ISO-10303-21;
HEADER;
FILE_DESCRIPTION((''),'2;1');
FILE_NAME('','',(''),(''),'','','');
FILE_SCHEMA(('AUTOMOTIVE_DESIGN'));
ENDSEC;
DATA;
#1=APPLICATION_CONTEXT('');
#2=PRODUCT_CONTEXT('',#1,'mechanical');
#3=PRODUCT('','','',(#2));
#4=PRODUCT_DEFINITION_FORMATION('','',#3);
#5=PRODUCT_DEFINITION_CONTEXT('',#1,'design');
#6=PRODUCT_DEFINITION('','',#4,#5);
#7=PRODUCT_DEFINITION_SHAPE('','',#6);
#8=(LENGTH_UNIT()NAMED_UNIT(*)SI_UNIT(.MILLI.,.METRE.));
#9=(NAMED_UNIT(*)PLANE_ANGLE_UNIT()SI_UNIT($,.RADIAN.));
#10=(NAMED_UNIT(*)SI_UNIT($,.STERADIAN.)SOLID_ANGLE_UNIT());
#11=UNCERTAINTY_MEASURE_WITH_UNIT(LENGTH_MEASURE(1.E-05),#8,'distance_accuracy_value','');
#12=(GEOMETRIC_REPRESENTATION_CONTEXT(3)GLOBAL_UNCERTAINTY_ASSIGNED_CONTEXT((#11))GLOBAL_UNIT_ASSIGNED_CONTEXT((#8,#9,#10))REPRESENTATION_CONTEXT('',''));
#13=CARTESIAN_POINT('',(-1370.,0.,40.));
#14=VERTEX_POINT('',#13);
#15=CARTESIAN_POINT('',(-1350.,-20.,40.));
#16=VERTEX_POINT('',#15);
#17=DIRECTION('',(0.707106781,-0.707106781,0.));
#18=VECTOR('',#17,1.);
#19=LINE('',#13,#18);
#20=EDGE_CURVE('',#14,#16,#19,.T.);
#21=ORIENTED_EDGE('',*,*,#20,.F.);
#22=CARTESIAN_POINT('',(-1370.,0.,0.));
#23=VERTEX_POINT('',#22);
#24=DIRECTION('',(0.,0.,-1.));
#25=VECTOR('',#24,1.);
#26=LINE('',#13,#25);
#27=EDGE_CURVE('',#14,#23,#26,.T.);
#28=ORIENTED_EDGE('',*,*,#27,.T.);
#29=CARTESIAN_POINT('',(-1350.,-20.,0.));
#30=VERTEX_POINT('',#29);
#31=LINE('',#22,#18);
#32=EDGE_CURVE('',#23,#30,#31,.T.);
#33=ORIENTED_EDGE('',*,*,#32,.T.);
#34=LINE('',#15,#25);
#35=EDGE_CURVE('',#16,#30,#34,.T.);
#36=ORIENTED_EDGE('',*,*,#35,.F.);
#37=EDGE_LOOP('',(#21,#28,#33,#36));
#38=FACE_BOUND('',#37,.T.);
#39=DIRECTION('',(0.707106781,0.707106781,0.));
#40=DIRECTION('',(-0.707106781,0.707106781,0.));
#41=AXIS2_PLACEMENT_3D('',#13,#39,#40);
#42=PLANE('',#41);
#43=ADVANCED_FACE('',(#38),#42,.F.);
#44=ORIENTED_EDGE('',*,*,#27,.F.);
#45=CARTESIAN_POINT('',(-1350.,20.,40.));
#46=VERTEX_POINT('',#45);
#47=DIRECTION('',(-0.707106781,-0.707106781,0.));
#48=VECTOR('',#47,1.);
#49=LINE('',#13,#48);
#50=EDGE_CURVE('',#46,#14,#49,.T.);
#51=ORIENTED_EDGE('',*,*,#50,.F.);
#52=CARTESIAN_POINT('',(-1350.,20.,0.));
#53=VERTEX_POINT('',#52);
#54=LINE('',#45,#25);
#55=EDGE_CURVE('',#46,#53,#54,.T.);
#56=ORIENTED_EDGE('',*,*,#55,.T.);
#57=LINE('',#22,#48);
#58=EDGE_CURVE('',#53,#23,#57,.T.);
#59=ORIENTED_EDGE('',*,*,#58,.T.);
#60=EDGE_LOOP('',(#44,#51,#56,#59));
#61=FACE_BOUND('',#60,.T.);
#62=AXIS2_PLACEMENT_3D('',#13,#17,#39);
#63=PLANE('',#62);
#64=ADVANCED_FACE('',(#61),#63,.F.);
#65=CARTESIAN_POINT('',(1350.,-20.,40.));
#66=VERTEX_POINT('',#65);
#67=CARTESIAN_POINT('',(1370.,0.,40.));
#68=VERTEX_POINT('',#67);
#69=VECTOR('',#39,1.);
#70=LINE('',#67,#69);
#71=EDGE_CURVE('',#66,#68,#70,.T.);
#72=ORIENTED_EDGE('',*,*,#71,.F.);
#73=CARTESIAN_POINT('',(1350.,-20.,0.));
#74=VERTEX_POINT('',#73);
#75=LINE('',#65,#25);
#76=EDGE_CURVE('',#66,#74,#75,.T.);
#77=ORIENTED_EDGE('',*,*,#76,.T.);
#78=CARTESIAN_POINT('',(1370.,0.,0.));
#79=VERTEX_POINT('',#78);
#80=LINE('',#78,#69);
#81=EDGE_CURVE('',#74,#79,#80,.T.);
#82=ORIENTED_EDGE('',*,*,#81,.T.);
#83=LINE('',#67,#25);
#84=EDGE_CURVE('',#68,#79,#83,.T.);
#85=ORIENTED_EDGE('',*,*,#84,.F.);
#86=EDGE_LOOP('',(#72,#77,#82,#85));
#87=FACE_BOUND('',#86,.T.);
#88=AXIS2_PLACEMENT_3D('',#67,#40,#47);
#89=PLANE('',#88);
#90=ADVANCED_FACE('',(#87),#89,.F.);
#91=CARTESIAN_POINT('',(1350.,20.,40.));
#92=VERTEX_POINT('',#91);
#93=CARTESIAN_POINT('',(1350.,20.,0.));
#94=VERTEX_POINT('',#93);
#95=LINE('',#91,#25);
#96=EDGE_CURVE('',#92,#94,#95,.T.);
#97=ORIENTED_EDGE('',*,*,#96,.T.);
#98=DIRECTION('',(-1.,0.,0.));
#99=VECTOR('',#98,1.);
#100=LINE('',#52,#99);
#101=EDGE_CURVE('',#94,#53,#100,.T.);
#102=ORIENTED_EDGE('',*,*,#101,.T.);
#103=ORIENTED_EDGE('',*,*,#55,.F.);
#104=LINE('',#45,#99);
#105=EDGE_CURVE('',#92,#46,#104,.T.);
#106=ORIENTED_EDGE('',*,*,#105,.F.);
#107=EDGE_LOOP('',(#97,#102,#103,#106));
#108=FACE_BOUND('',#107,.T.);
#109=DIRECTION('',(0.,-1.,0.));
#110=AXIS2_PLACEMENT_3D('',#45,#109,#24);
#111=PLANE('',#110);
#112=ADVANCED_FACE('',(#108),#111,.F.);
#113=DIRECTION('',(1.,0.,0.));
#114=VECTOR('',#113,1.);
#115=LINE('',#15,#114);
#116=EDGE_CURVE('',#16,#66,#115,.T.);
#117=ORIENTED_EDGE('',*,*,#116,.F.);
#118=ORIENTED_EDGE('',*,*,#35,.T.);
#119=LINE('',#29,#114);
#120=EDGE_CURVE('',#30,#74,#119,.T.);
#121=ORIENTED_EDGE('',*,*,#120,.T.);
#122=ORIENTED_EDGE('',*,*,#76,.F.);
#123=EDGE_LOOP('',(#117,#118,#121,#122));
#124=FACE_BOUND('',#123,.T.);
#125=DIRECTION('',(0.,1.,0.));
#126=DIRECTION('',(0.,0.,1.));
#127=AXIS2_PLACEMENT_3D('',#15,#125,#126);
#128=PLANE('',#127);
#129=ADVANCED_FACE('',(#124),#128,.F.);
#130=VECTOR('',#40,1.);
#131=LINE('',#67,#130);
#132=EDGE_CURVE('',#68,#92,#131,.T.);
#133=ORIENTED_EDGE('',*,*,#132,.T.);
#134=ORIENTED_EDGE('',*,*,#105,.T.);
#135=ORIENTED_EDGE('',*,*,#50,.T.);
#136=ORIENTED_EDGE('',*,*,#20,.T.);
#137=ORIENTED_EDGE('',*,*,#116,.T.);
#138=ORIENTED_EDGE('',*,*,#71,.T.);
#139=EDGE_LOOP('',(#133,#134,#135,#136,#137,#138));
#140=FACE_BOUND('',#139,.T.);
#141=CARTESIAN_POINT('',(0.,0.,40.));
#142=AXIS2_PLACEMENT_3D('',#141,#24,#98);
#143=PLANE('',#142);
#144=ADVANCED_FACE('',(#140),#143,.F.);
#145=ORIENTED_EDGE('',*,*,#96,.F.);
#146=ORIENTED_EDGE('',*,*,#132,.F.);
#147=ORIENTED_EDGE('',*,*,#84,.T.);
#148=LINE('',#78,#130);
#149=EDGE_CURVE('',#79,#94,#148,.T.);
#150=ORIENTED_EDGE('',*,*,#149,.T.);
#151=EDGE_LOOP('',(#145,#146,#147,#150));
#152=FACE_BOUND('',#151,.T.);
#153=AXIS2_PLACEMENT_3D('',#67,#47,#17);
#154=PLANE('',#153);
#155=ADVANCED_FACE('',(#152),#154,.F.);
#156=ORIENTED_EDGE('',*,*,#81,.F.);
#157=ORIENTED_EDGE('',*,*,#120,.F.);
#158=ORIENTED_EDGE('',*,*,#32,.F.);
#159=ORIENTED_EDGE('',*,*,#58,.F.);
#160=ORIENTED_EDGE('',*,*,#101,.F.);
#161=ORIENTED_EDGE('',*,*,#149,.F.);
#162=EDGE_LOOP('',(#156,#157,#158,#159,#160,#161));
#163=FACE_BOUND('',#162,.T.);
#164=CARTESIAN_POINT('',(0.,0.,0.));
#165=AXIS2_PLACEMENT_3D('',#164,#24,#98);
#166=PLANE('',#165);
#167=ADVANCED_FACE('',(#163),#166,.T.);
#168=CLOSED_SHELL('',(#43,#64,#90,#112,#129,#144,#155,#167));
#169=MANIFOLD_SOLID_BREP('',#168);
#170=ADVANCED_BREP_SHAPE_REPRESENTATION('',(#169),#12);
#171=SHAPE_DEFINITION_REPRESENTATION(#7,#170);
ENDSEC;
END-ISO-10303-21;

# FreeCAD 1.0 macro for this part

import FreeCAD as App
import Part
import Sketcher
from FreeCAD import Vector


def add_polygon(sketch, points):
    """Adds a closed chain of lines whose ends are joined by coincident constraints."""
    first, n = sketch.GeometryCount, len(points)
    for a, b in zip(points, points[1:] + points[:1]):
        sketch.addGeometry(Part.LineSegment(App.Vector(*a, 0), App.Vector(*b, 0)), False)
    for i in range(n):
        sketch.addConstraint(Sketcher.Constraint("Coincident", first + i, 2, first + (i + 1) % n, 1))

doc = App.newDocument("Part")
body = doc.addObject("PartDesign::Body", "Body")

sketch1 = body.newObject("Sketcher::SketchObject", "Sketch")
sketch1.AttachmentSupport = (doc.getObject("XY_Plane"), [""])
sketch1.MapMode = "FlatFace"
add_polygon(sketch1, [(-1350, 20), (-1370, 0), (-1350, -20), (1350, -20), (1370, 0), (1350, 20)])
sketch1.addConstraint([
    Sketcher.Constraint("Horizontal", 2),
    Sketcher.Constraint("Horizontal", 5),
    Sketcher.Constraint("Symmetric", 0, 2, 3, 2, -1, 1),
    Sketcher.Constraint("Symmetric", 1, 2, 4, 2, -1, 1),
    Sketcher.Constraint("PointOnObject", 0, 2, -1),
    Sketcher.Constraint("Perpendicular", 0, 1),
    Sketcher.Constraint("Perpendicular", 1, 3),
    Sketcher.Constraint("Vertical", 2, 2, 4, 2),
    Sketcher.Constraint("DistanceX", 2, 1, 2, 2, 2700.0),
    Sketcher.Constraint("DistanceX", 0, 2, -1, 1, 1370.0),
])
pad1 = body.newObject("PartDesign::Pad", "Pad")
pad1.Profile = sketch1
pad1.Length = 40

doc.recompute()
